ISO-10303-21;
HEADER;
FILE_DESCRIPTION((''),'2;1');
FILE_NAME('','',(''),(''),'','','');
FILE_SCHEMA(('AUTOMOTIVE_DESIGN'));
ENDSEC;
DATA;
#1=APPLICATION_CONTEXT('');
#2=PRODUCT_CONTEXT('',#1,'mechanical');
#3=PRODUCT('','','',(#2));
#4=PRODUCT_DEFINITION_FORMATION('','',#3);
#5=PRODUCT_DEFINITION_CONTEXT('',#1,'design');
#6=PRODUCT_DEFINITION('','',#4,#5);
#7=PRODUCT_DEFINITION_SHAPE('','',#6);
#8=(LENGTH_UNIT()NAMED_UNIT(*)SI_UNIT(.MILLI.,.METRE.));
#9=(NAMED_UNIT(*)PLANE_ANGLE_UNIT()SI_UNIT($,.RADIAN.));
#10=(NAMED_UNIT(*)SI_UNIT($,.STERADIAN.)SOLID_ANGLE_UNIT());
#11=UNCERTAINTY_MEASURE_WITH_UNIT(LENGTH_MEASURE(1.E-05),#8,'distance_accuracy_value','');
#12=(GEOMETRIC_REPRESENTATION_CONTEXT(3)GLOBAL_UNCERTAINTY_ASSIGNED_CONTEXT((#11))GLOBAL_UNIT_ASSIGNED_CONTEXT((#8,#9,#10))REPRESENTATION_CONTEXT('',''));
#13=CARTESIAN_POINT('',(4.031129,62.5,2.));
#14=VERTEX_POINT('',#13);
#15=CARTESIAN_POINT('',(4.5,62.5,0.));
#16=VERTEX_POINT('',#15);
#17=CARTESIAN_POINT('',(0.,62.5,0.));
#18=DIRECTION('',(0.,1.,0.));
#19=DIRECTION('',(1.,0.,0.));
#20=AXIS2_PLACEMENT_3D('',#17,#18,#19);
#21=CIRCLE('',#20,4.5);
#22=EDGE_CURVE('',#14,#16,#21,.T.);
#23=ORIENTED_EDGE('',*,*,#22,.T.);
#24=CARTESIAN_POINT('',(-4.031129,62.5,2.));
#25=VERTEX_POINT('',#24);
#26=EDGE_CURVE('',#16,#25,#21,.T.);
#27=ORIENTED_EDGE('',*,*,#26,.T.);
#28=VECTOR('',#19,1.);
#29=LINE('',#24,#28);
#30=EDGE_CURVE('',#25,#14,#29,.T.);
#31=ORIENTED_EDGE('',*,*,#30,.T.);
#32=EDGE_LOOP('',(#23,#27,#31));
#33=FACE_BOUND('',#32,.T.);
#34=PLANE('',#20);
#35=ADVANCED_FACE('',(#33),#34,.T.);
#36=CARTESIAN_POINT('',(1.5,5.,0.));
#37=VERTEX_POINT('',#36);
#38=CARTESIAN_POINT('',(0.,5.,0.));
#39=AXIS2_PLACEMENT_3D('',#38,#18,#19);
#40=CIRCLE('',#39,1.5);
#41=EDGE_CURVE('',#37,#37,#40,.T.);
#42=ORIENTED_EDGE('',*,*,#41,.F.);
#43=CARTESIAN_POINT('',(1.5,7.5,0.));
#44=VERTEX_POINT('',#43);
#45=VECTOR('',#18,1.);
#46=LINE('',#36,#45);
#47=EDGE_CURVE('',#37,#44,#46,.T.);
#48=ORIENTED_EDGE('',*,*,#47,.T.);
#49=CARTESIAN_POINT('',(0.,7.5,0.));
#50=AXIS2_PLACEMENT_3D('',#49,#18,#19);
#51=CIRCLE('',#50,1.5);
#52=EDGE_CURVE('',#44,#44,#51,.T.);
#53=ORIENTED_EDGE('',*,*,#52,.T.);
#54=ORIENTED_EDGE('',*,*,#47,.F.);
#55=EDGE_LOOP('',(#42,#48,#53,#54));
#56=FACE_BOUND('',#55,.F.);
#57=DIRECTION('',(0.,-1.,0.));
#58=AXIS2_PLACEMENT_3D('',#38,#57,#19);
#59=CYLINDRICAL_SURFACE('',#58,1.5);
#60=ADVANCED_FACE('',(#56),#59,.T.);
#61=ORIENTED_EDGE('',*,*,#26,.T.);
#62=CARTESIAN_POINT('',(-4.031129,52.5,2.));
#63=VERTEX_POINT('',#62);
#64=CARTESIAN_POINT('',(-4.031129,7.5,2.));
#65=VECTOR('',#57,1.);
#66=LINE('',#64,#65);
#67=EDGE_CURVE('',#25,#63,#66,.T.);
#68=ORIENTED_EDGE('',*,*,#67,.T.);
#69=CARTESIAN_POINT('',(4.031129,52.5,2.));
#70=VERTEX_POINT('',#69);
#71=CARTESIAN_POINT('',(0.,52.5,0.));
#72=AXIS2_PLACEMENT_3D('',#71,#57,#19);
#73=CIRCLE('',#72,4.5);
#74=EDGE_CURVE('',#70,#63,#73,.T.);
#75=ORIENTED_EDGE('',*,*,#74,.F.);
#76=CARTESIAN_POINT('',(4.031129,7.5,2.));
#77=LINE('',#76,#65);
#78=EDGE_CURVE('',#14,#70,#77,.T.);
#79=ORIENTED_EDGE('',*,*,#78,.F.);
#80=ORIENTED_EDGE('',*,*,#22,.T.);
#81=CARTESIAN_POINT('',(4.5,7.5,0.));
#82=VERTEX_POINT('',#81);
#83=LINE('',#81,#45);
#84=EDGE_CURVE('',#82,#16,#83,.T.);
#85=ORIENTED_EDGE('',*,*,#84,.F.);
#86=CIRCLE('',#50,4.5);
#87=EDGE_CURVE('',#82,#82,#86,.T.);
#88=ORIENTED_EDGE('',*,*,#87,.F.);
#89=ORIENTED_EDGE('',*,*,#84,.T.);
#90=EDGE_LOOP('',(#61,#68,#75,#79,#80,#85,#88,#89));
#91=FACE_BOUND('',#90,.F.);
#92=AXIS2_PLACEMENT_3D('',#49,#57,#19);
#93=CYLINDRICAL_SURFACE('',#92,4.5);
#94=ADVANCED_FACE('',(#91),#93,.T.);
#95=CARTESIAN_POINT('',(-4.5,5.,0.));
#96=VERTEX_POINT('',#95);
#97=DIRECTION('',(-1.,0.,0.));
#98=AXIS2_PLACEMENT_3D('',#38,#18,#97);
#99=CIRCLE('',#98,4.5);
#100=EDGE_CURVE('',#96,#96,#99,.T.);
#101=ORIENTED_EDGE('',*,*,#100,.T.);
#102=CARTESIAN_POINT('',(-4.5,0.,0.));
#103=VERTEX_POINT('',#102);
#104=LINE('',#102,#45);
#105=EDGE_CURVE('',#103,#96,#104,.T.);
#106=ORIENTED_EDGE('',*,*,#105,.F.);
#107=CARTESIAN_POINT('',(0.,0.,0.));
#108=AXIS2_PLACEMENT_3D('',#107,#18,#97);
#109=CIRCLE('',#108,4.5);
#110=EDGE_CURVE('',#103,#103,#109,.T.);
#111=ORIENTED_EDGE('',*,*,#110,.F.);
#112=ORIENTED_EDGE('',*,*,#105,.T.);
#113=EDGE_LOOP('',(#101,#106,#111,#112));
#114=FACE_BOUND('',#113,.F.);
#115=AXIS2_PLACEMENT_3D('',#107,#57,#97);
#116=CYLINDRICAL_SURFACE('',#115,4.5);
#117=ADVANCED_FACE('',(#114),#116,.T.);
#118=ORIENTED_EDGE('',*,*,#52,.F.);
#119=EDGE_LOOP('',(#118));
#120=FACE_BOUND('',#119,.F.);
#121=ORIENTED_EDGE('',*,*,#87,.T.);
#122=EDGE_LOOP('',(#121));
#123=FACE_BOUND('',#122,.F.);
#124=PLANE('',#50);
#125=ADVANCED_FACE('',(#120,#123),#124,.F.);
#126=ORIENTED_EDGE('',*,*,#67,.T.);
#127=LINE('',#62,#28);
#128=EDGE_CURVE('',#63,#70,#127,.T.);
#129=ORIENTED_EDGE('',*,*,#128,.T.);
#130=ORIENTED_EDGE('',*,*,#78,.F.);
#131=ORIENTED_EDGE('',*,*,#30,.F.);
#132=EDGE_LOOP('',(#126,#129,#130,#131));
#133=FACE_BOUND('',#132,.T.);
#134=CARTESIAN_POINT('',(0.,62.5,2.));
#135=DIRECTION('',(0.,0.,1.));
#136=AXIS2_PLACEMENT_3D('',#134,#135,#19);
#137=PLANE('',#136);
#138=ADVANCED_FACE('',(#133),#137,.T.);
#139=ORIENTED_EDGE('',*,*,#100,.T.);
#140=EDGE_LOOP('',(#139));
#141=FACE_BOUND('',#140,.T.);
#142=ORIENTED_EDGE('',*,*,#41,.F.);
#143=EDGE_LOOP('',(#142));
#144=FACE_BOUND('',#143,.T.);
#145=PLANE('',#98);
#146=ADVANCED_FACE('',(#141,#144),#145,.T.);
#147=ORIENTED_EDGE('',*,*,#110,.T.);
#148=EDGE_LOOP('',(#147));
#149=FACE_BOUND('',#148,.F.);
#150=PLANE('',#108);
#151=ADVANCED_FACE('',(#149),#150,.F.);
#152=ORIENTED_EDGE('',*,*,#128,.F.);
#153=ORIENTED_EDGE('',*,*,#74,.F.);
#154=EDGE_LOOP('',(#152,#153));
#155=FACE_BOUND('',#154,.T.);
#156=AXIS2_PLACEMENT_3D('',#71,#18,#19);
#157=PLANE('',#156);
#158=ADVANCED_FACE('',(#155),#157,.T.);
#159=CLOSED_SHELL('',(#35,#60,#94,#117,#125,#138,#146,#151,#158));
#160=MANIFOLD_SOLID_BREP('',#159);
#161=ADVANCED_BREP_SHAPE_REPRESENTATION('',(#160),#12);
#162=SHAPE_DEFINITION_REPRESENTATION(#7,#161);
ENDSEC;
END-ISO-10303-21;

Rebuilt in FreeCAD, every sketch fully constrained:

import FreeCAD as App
import Part
import Sketcher
from FreeCAD import Vector


def add_polygon(sketch, points):
    """Adds a closed chain of lines whose ends are joined by coincident constraints."""
    first, n = sketch.GeometryCount, len(points)
    for a, b in zip(points, points[1:] + points[:1]):
        sketch.addGeometry(Part.LineSegment(App.Vector(*a, 0), App.Vector(*b, 0)), False)
    for i in range(n):
        sketch.addConstraint(Sketcher.Constraint("Coincident", first + i, 2, first + (i + 1) % n, 1))

doc = App.newDocument("Part")
body = doc.addObject("PartDesign::Body", "Body")

sketch1 = body.newObject("Sketcher::SketchObject", "Sketch")
sketch1.AttachmentSupport = (doc.getObject("XZ_Plane"), [""])
sketch1.MapMode = "FlatFace"
sketch1.addGeometry(Part.Circle(Vector(0, 0, 0), Vector(0, 0, 1), 4.5), False)
sketch1.addConstraint([
    Sketcher.Constraint("Coincident", 0, 3, -1, 1),
    Sketcher.Constraint("Diameter", 0, 9.0),
])
pad1 = body.newObject("PartDesign::Pad", "Pad")
pad1.Profile = sketch1
pad1.Length = 5
pad1.Reversed = True

sketch2 = body.newObject("Sketcher::SketchObject", "Sketch001")
sketch2.AttachmentSupport = (doc.getObject("XZ_Plane"), [""])
sketch2.MapMode = "FlatFace"
sketch2.AttachmentOffset = App.Placement(Vector(0, 0, -5), App.Rotation())
sketch2.addGeometry(Part.Circle(Vector(0, 0, 0), Vector(0, 0, 1), 1.5), False)
sketch2.addConstraint([
    Sketcher.Constraint("Coincident", 0, 3, -1, 1),
    Sketcher.Constraint("Diameter", 0, 3.0),
])
pad2 = body.newObject("PartDesign::Pad", "Pad001")
pad2.Profile = sketch2
pad2.Length = 2.5
pad2.Reversed = True

sketch3 = body.newObject("Sketcher::SketchObject", "Sketch002")
sketch3.AttachmentSupport = (doc.getObject("XZ_Plane"), [""])
sketch3.MapMode = "FlatFace"
sketch3.AttachmentOffset = App.Placement(Vector(0, 0, -7.5), App.Rotation())
sketch3.addGeometry(Part.Circle(Vector(0, 0, 0), Vector(0, 0, 1), 4.5), False)
sketch3.addConstraint([
    Sketcher.Constraint("Coincident", 0, 3, -1, 1),
    Sketcher.Constraint("Diameter", 0, 9.0),
])
pad3 = body.newObject("PartDesign::Pad", "Pad002")
pad3.Profile = sketch3
pad3.Length = 55
pad3.Reversed = True

sketch4 = body.newObject("Sketcher::SketchObject", "Sketch003")
sketch4.AttachmentSupport = (doc.getObject("XZ_Plane"), [""])
sketch4.MapMode = "FlatFace"
sketch4.AttachmentOffset = App.Placement(Vector(0, 0, -62.5), App.Rotation())
add_polygon(sketch4, [(5, 2), (-5, 2), (-5, 6.6), (5, 6.6)])
sketch4.addConstraint([
    Sketcher.Constraint("Horizontal", 0),
    Sketcher.Constraint("Vertical", 1),
    Sketcher.Constraint("Horizontal", 2),
    Sketcher.Constraint("Vertical", 3),
    Sketcher.Constraint("DistanceY", -1, 1, 0, 2, 2.0),
    Sketcher.Constraint("DistanceX", 0, 2, 0, 1, 10.0196),
    Sketcher.Constraint("DistanceY", 1, 1, 1, 2, 4.5905),
    Sketcher.Constraint("DistanceX", 0, 2, -1, 1, 5.0098),
])
pocket1 = body.newObject("PartDesign::Pocket", "Pocket")
pocket1.Profile = sketch4
pocket1.Length = 10
pocket1.Reversed = True

doc.recompute()
